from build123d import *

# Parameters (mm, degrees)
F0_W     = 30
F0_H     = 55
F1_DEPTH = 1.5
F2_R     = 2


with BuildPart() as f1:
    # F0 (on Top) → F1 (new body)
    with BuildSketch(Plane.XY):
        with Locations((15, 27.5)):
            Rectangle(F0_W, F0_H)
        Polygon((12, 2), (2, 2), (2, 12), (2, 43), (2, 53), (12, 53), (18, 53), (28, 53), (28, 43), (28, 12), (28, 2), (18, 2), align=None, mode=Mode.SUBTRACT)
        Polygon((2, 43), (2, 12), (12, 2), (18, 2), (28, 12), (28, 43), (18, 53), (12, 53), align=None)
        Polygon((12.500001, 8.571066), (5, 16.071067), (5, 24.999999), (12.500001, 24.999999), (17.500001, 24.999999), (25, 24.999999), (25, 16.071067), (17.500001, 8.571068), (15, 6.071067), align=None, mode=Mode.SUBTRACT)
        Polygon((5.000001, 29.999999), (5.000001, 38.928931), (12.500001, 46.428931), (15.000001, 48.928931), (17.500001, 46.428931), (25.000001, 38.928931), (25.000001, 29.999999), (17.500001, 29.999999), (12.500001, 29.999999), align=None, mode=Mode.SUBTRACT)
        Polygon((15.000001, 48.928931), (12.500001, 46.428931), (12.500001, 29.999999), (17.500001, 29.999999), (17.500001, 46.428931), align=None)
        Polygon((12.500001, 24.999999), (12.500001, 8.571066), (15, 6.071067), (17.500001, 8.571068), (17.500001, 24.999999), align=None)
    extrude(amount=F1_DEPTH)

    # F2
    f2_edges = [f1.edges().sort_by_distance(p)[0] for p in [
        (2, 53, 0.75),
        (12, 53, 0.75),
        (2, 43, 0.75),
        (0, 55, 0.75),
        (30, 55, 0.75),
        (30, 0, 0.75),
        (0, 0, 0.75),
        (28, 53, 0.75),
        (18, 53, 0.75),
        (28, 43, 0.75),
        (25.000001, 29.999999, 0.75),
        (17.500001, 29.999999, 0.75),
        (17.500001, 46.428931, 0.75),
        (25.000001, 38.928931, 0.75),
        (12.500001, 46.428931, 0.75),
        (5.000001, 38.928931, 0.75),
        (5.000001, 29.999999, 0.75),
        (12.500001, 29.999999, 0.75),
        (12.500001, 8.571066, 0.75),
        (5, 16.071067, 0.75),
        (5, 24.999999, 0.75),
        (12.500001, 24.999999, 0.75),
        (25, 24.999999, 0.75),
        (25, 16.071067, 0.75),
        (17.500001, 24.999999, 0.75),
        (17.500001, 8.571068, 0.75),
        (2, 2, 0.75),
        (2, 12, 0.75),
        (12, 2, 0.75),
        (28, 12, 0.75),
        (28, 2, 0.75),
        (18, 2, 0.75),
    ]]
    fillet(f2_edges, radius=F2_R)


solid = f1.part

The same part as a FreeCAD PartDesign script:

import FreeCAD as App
import Part
import Sketcher

V = App.Vector
Q = App.Units.Quantity


def edges_at(feature, points):
    """Names of the edges that pass closest to the given points."""
    edges = feature.Shape.Edges
    near = lambda p: min(range(len(edges)), key=lambda i: edges[i].distToShape(Part.Vertex(*p))[0])
    return sorted({f"Edge{near(p) + 1}" for p in points})


def add_polygon(sketch, points):
    """Adds a closed chain of lines whose ends are joined by coincident constraints."""
    first, n = sketch.GeometryCount, len(points)
    for a, b in zip(points, points[1:] + points[:1]):
        sketch.addGeometry(Part.LineSegment(App.Vector(*a, 0), App.Vector(*b, 0)), False)
    for i in range(n):
        sketch.addConstraint(Sketcher.Constraint("Coincident", first + i, 2, first + (i + 1) % n, 1))

doc = App.newDocument("Part")
body = doc.addObject("PartDesign::Body", "Body")

sketch1 = body.newObject("Sketcher::SketchObject", "Sketch")
sketch1.AttachmentSupport = (doc.getObject("XY_Plane"), [""])
sketch1.MapMode = "FlatFace"
add_polygon(sketch1, [(0, 55), (0, 0), (30, 0), (30, 55)])
add_polygon(sketch1, [(12, 2), (2, 2), (2, 12)])
add_polygon(sketch1, [(13, 9), (5, 16), (5, 25), (13, 25)])
add_polygon(sketch1, [(18, 25), (25, 25), (25, 16), (18, 9)])
add_polygon(sketch1, [(28, 2), (18, 2), (28, 12)])
add_polygon(sketch1, [(2, 43), (2, 53), (12, 53)])
add_polygon(sketch1, [(25, 30), (18, 30), (18, 46), (25, 39)])
add_polygon(sketch1, [(13, 30), (5, 30), (5, 39), (13, 46)])
add_polygon(sketch1, [(18, 53), (28, 53), (28, 43)])
sketch1.addConstraint(Sketcher.Constraint("Vertical", 0))
sketch1.addConstraint(Sketcher.Constraint("Horizontal", 1))
sketch1.addConstraint(Sketcher.Constraint("Vertical", 2))
sketch1.addConstraint(Sketcher.Constraint("Horizontal", 3))
sketch1.addConstraint(Sketcher.Constraint("Horizontal", 4))
sketch1.addConstraint(Sketcher.Constraint("Vertical", 5))
sketch1.addConstraint(Sketcher.Constraint("Vertical", 8))
sketch1.addConstraint(Sketcher.Constraint("Horizontal", 9))
sketch1.addConstraint(Sketcher.Constraint("Vertical", 10))
sketch1.addConstraint(Sketcher.Constraint("Horizontal", 11))
sketch1.addConstraint(Sketcher.Constraint("Vertical", 12))
sketch1.addConstraint(Sketcher.Constraint("Vertical", 14))
sketch1.addConstraint(Sketcher.Constraint("Horizontal", 15))
sketch1.addConstraint(Sketcher.Constraint("Vertical", 17))
sketch1.addConstraint(Sketcher.Constraint("Vertical", 18))
sketch1.addConstraint(Sketcher.Constraint("Horizontal", 19))
sketch1.addConstraint(Sketcher.Constraint("Horizontal", 21))
sketch1.addConstraint(Sketcher.Constraint("Vertical", 22))
sketch1.addConstraint(Sketcher.Constraint("Vertical", 24))
sketch1.addConstraint(Sketcher.Constraint("Horizontal", 25))
sketch1.addConstraint(Sketcher.Constraint("Vertical", 26))
sketch1.addConstraint(Sketcher.Constraint("Vertical", 28))
sketch1.addConstraint(Sketcher.Constraint("Horizontal", 29))
sketch1.addConstraint(Sketcher.Constraint("Vertical", 30))
sketch1.addConstraint(Sketcher.Constraint("Coincident", 0, 2, -1, 1))
sketch1.addConstraint(Sketcher.Constraint("Parallel", 6, 7))
sketch1.addConstraint(Sketcher.Constraint("Perpendicular", 7, 13))
sketch1.addConstraint(Sketcher.Constraint("Parallel", 13, 16))
sketch1.addConstraint(Sketcher.Constraint("Parallel", 16, 20))
sketch1.addConstraint(Sketcher.Constraint("Perpendicular", 20, 23))
sketch1.addConstraint(Sketcher.Constraint("Perpendicular", 23, 27))
sketch1.addConstraint(Sketcher.Constraint("Perpendicular", 27, 31))
sketch1.addConstraint(Sketcher.Constraint("Horizontal", 9, 2, 11, 2))
sketch1.addConstraint(Sketcher.Constraint("Horizontal", 7, 2, 12, 2))
sketch1.addConstraint(Sketcher.Constraint("Horizontal", 6, 2, 15, 2))
sketch1.addConstraint(Sketcher.Constraint("Horizontal", 5, 2, 16, 2))
sketch1.addConstraint(Sketcher.Constraint("Horizontal", 24, 2, 25, 2))
sketch1.addConstraint(Sketcher.Constraint("Horizontal", 23, 2, 26, 2))
sketch1.addConstraint(Sketcher.Constraint("Horizontal", 22, 2, 27, 2))
sketch1.addConstraint(Sketcher.Constraint("Horizontal", 19, 2, 29, 2))
sketch1.addConstraint(Sketcher.Constraint("Horizontal", 20, 2, 30, 2))
sketch1.addConstraint(Sketcher.Constraint("Vertical", 5, 2, 18, 2))
sketch1.addConstraint(Sketcher.Constraint("Vertical", 6, 2, 19, 2))
sketch1.addConstraint(Sketcher.Constraint("Vertical", 14, 2, 21, 2))
sketch1.addConstraint(Sketcher.Constraint("Vertical", 12, 2, 23, 2))
sketch1.addConstraint(Sketcher.Constraint("Vertical", 8, 2, 25, 2))
sketch1.addConstraint(Sketcher.Constraint("Vertical", 10, 2, 27, 2))
sketch1.addConstraint(Sketcher.Constraint("Vertical", 17, 2, 29, 2))
sketch1.addConstraint(Sketcher.Constraint("Vertical", 15, 2, 31, 2))
sketch1.addConstraint(Sketcher.Constraint("Equal", 14, 22))
sketch1.addConstraint(Sketcher.Constraint("DistanceX", 1, 1, 1, 2, Q("30 mm")))
sketch1.addConstraint(Sketcher.Constraint("DistanceX", 4, 2, 4, 1, Q("10 mm")))
sketch1.addConstraint(Sketcher.Constraint("DistanceY", 0, 2, 0, 1, Q("55 mm")))
sketch1.addConstraint(Sketcher.Constraint("DistanceX", 9, 1, 9, 2, Q("7.500001 mm")))
sketch1.addConstraint(Sketcher.Constraint("DistanceX", -1, 1, 4, 2, Q("2 mm")))
sketch1.addConstraint(Sketcher.Constraint("DistanceY", -1, 1, 4, 2, Q("2 mm")))
sketch1.addConstraint(Sketcher.Constraint("DistanceX", -1, 1, 7, 2, Q("5 mm")))
sketch1.addConstraint(Sketcher.Constraint("DistanceY", -1, 1, 8, 2, Q("24.999999 mm")))
sketch1.addConstraint(Sketcher.Constraint("DistanceX", -1, 1, 11, 2, Q("25 mm")))
sketch1.addConstraint(Sketcher.Constraint("DistanceX", -1, 1, 15, 2, Q("18 mm")))
sketch1.addConstraint(Sketcher.Constraint("DistanceY", -1, 1, 18, 2, Q("53 mm")))
sketch1.addConstraint(Sketcher.Constraint("DistanceY", -1, 1, 21, 2, Q("29.999999 mm")))
sketch1.addConstraint(Sketcher.Constraint("DistanceY", 14, 1, 14, 2, Q("16.428931 mm")))
pad1 = body.newObject("PartDesign::Pad", "Pad")
pad1.Profile = sketch1
pad1.Length = 1.5
doc.recompute()

fillet = body.newObject("PartDesign::Fillet", "Fillet")
fillet.Base = (pad1, edges_at(pad1, [
    (2, 53, 0.75),
    (12, 53, 0.75),
    (2, 43, 0.75),
    (0, 55, 0.75),
    (30, 55, 0.75),
    (30, 0, 0.75),
    (0, 0, 0.75),
    (28, 53, 0.75),
    (18, 53, 0.75),
    (28, 43, 0.75),
    (25, 30, 0.75),
    (17.5, 30, 0.75),
    (17.5, 46.429, 0.75),
    (25, 38.929, 0.75),
    (12.5, 46.429, 0.75),
    (5, 38.929, 0.75),
    (5, 30, 0.75),
    (12.5, 30, 0.75),
    (12.5, 8.571, 0.75),
    (5, 16.071, 0.75),
    (5, 25, 0.75),
    (12.5, 25, 0.75),
    (25, 25, 0.75),
    (25, 16.071, 0.75),
    (17.5, 25, 0.75),
    (17.5, 8.571, 0.75),
    (2, 2, 0.75),
    (2, 12, 0.75),
    (12, 2, 0.75),
    (28, 12, 0.75),
    (28, 2, 0.75),
    (18, 2, 0.75),
]))
fillet.Radius = 2

doc.recompute()
